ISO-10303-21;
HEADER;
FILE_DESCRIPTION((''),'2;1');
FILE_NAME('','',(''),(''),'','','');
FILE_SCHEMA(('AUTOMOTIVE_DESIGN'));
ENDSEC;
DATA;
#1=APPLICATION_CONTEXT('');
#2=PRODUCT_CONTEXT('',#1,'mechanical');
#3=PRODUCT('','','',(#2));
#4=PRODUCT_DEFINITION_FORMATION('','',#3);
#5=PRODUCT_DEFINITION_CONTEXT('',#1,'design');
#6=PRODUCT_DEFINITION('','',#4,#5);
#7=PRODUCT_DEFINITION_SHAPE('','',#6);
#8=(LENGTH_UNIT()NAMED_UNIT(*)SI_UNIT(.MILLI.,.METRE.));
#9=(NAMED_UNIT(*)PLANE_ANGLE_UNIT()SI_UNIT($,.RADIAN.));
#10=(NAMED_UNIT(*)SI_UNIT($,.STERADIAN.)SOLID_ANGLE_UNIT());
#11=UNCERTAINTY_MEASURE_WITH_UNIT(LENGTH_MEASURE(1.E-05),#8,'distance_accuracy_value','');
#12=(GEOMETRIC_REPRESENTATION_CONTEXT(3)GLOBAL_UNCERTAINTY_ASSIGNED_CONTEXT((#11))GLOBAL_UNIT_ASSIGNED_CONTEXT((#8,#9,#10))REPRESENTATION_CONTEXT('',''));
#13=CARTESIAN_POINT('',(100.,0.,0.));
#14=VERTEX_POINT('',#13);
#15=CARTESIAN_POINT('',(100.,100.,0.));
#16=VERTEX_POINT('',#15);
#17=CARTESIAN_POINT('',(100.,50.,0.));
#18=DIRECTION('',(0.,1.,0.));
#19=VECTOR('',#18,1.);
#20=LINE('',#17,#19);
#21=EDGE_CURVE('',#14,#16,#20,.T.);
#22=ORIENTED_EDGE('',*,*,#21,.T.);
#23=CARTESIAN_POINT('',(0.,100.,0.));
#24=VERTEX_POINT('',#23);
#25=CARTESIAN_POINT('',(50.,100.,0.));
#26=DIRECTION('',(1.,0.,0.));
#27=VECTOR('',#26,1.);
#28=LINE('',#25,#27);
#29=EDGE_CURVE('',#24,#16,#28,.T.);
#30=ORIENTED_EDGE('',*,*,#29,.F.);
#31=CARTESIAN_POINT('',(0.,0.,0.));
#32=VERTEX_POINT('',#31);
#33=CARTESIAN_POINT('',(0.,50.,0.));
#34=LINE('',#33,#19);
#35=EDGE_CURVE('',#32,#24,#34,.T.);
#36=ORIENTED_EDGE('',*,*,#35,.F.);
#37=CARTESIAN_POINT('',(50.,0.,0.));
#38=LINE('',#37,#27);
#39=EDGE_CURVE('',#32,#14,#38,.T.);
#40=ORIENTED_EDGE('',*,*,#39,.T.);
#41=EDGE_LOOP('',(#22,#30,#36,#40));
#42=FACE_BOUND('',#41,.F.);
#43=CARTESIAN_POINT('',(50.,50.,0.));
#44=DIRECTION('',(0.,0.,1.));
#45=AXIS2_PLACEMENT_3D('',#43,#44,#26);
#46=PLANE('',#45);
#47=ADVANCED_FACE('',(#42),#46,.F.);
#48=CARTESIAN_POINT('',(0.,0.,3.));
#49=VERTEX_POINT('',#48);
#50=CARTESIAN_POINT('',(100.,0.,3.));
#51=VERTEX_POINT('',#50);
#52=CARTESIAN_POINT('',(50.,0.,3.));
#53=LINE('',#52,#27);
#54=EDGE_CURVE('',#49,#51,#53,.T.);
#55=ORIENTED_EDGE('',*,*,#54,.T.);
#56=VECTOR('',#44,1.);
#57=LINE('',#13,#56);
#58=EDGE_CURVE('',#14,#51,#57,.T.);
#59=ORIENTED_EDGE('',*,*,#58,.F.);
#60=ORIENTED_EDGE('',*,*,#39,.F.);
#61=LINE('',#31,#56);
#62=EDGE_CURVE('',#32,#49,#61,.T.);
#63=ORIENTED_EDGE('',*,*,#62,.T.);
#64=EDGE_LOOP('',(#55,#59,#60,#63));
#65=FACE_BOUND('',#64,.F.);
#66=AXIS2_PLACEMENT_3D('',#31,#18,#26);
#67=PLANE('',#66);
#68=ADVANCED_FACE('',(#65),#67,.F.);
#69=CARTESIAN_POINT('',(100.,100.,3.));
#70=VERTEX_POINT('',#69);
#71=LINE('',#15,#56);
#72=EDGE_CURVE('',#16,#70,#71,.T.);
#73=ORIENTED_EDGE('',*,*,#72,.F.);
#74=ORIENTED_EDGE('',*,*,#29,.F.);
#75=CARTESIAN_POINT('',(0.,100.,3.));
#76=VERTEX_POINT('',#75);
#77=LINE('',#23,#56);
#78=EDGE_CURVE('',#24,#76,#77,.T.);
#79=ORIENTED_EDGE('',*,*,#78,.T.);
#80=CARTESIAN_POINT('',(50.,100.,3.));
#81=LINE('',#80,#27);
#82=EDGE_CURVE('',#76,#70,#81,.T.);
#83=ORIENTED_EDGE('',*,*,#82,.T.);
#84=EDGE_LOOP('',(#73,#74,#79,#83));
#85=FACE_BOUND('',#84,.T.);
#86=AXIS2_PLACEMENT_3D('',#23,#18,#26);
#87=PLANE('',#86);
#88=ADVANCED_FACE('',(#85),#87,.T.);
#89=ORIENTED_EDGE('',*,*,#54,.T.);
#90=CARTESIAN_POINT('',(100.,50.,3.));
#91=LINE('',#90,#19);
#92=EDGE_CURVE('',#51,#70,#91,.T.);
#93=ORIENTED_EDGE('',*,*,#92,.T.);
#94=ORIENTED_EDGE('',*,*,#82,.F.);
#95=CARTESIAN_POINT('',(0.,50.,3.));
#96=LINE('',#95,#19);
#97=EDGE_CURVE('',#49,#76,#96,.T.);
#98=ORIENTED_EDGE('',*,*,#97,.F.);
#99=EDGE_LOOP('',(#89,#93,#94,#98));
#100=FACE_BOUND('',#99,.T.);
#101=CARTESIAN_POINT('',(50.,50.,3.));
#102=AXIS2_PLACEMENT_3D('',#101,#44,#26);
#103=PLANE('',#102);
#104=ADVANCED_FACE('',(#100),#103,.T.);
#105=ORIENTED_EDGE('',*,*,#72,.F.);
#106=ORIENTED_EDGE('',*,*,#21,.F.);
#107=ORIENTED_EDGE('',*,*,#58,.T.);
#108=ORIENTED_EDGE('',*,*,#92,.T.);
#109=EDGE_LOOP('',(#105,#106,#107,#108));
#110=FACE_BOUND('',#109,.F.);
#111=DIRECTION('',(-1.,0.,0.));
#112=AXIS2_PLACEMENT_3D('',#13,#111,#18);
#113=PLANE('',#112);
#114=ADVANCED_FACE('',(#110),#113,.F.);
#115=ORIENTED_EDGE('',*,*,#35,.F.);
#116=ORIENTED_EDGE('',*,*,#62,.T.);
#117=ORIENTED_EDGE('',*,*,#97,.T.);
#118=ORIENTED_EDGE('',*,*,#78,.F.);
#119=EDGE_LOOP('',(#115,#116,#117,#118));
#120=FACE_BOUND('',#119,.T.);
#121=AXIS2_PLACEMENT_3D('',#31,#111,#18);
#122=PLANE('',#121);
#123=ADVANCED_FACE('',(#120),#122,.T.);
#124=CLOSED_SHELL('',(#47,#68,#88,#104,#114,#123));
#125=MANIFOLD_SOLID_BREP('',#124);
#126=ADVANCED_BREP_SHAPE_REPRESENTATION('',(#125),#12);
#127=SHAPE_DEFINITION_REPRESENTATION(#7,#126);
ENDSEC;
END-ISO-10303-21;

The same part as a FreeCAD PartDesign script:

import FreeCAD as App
import Part
import Sketcher

V = App.Vector

doc = App.newDocument("Part")
body = doc.addObject("PartDesign::Body", "Body")

sketch1 = body.newObject("Sketcher::SketchObject", "Sketch")
sketch1.AttachmentSupport = (doc.getObject("XY_Plane"), [""])
sketch1.MapMode = "FlatFace"
sketch1.addGeometry(Part.LineSegment(V(0, 100, 0), V(0, 0, 0)), False)
sketch1.addGeometry(Part.LineSegment(V(0, 0, 0), V(100, 0, 0)), False)
sketch1.addGeometry(Part.LineSegment(V(100, 0, 0), V(100, 100, 0)), False)
sketch1.addGeometry(Part.LineSegment(V(100, 100, 0), V(0, 100, 0)), False)
sketch1.addConstraint(Sketcher.Constraint("Coincident", 0, 2, 1, 1))
sketch1.addConstraint(Sketcher.Constraint("Coincident", 1, 2, 2, 1))
sketch1.addConstraint(Sketcher.Constraint("Coincident", 2, 2, 3, 1))
sketch1.addConstraint(Sketcher.Constraint("Coincident", 3, 2, 0, 1))
sketch1.addConstraint(Sketcher.Constraint("Vertical", 0))
sketch1.addConstraint(Sketcher.Constraint("Horizontal", 1))
sketch1.addConstraint(Sketcher.Constraint("Vertical", 2))
sketch1.addConstraint(Sketcher.Constraint("Horizontal", 3))
sketch1.addConstraint(Sketcher.Constraint("Coincident", 0, 2, -1, 1))
sketch1.addConstraint(Sketcher.Constraint("Equal", 3, 0))
sketch1.addConstraint(Sketcher.Constraint("DistanceX", 1, 1, 1, 2, 100.0))
pad1 = body.newObject("PartDesign::Pad", "Pad")
pad1.Profile = sketch1
pad1.Length = 3

doc.recompute()
